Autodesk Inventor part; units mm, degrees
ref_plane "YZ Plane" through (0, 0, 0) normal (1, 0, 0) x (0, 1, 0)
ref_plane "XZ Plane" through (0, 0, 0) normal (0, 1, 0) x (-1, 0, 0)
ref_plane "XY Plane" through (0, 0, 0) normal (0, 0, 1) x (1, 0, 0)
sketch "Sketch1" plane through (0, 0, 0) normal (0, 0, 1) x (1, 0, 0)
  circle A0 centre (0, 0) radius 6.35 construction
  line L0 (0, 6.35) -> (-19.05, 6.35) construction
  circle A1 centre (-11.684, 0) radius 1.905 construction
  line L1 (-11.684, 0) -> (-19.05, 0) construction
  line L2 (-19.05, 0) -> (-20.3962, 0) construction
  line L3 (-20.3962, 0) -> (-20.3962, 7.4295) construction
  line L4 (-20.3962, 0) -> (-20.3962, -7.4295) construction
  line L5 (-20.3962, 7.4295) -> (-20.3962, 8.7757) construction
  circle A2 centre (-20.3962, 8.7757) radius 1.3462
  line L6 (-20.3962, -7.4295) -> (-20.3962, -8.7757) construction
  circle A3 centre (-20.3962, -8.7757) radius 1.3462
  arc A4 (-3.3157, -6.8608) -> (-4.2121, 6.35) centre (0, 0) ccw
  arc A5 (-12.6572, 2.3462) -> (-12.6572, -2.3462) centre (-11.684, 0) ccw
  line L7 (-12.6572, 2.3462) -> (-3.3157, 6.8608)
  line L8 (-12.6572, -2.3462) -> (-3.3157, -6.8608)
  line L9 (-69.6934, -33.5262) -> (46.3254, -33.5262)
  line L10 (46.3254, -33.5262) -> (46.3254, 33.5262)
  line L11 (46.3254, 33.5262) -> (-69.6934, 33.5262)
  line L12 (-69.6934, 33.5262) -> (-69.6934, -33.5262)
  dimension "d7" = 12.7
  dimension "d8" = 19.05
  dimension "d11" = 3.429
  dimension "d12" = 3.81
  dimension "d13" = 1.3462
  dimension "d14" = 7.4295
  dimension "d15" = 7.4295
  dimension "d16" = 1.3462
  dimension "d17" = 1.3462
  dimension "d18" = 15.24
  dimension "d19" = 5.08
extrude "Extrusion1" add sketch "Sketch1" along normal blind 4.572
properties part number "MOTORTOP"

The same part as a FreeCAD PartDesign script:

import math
import FreeCAD as App
import Part
import Sketcher

V = App.Vector
Q = App.Units.Quantity

doc = App.newDocument("Part")
body = doc.addObject("PartDesign::Body", "Body")

sketch1 = doc.addObject("Sketcher::SketchObject", "Sketch")
body.addObject(sketch1)
sketch1.AttachmentSupport = (doc.XY_Plane, [""])
sketch1.MapMode = "FlatFace"
sketch1.addGeometry([
    Part.LineSegment(V(-69.6934, 33.5262, 0), V(-69.6934, -33.5262, 0)),
    Part.LineSegment(V(-69.6934, -33.5262, 0), V(46.3254, -33.5262, 0)),
    Part.LineSegment(V(46.3254, -33.5262, 0), V(46.3254, 33.5262, 0)),
    Part.LineSegment(V(46.3254, 33.5262, 0), V(-69.6934, 33.5262, 0)),
    Part.Circle(V(-20.3962, -8.7757, 0), V(0, 0, 1), 1.3462),
    Part.ArcOfCircle(Part.Circle(V(0, 0, 0), V(0, 0, 1), 7.620003), math.radians(-115.793634), math.radians(115.793634)),
    Part.LineSegment(V(-3.3157, -6.8608, 0), V(-12.6572, -2.3462, 0)),
    Part.ArcOfCircle(Part.Circle(V(-11.684, 0, 0), V(0, 0, 1), 2.540034), math.radians(112.528595), math.radians(247.471405)),
    Part.LineSegment(V(-12.6572, 2.3462, 0), V(-3.3157, 6.8608, 0)),
    Part.Circle(V(-20.3962, 8.7757, 0), V(0, 0, 1), 1.3462),
], False)
sketch1.addConstraint([
    Sketcher.Constraint("Coincident", 0, 2, 1, 1),
    Sketcher.Constraint("Coincident", 1, 2, 2, 1),
    Sketcher.Constraint("Coincident", 2, 2, 3, 1),
    Sketcher.Constraint("Coincident", 3, 2, 0, 1),
    Sketcher.Constraint("Coincident", 5, 1, 6, 1),
    Sketcher.Constraint("Coincident", 6, 2, 7, 2),
    Sketcher.Constraint("Coincident", 7, 1, 8, 1),
    Sketcher.Constraint("Coincident", 8, 2, 5, 2),
    Sketcher.Constraint("Vertical", 0),
    Sketcher.Constraint("Horizontal", 1),
    Sketcher.Constraint("Vertical", 2),
    Sketcher.Constraint("Horizontal", 3),
    Sketcher.Constraint("Coincident", 5, 3, -1, 1),
    Sketcher.Constraint("PointOnObject", 7, 3, -1),
    Sketcher.Constraint("Radius", 5, Q("0.3 in")),
    Sketcher.Constraint("Radius", 7, Q("0.1 in")),
    Sketcher.Constraint("Diameter", 4, Q("0.106 in")),
    Sketcher.Constraint("Diameter", 9, Q("0.106 in")),
    Sketcher.Constraint("DistanceX", 7, 3, -1, 1, Q("0.46 in")),
    Sketcher.Constraint("DistanceX", 4, 3, -1, 1, Q("0.803 in")),
    Sketcher.Constraint("DistanceX", 9, 3, -1, 1, Q("0.803 in")),
    Sketcher.Constraint("DistanceY", 4, 3, 9, 3, Q("0.691 in")),
    Sketcher.Constraint("DistanceX", 1, 1, 1, 2, Q("116.0188 mm")),
    Sketcher.Constraint("DistanceY", 0, 2, 0, 1, Q("67.0524 mm")),
    Sketcher.Constraint("DistanceY", 4, 3, -1, 1, Q("0.3455 in")),
    Sketcher.Constraint("DistanceY", 5, 1, -1, 1, Q("0.2701 in")),
    Sketcher.Constraint("DistanceY", -1, 1, 8, 2, Q("0.2701 in")),
    Sketcher.Constraint("Distance", 6, Q("10.3752 mm")),
    Sketcher.Constraint("Distance", 8, Q("10.3752 mm")),
    Sketcher.Constraint("DistanceX", 0, 2, -1, 1, Q("69.6934 mm")),
    Sketcher.Constraint("DistanceY", 0, 2, -1, 1, Q("33.5262 mm")),
])
pad1 = doc.addObject("PartDesign::Pad", "Pad")
body.addObject(pad1)
pad1.Profile = sketch1
pad1.Length = Q("0.18 in")

doc.recompute()
